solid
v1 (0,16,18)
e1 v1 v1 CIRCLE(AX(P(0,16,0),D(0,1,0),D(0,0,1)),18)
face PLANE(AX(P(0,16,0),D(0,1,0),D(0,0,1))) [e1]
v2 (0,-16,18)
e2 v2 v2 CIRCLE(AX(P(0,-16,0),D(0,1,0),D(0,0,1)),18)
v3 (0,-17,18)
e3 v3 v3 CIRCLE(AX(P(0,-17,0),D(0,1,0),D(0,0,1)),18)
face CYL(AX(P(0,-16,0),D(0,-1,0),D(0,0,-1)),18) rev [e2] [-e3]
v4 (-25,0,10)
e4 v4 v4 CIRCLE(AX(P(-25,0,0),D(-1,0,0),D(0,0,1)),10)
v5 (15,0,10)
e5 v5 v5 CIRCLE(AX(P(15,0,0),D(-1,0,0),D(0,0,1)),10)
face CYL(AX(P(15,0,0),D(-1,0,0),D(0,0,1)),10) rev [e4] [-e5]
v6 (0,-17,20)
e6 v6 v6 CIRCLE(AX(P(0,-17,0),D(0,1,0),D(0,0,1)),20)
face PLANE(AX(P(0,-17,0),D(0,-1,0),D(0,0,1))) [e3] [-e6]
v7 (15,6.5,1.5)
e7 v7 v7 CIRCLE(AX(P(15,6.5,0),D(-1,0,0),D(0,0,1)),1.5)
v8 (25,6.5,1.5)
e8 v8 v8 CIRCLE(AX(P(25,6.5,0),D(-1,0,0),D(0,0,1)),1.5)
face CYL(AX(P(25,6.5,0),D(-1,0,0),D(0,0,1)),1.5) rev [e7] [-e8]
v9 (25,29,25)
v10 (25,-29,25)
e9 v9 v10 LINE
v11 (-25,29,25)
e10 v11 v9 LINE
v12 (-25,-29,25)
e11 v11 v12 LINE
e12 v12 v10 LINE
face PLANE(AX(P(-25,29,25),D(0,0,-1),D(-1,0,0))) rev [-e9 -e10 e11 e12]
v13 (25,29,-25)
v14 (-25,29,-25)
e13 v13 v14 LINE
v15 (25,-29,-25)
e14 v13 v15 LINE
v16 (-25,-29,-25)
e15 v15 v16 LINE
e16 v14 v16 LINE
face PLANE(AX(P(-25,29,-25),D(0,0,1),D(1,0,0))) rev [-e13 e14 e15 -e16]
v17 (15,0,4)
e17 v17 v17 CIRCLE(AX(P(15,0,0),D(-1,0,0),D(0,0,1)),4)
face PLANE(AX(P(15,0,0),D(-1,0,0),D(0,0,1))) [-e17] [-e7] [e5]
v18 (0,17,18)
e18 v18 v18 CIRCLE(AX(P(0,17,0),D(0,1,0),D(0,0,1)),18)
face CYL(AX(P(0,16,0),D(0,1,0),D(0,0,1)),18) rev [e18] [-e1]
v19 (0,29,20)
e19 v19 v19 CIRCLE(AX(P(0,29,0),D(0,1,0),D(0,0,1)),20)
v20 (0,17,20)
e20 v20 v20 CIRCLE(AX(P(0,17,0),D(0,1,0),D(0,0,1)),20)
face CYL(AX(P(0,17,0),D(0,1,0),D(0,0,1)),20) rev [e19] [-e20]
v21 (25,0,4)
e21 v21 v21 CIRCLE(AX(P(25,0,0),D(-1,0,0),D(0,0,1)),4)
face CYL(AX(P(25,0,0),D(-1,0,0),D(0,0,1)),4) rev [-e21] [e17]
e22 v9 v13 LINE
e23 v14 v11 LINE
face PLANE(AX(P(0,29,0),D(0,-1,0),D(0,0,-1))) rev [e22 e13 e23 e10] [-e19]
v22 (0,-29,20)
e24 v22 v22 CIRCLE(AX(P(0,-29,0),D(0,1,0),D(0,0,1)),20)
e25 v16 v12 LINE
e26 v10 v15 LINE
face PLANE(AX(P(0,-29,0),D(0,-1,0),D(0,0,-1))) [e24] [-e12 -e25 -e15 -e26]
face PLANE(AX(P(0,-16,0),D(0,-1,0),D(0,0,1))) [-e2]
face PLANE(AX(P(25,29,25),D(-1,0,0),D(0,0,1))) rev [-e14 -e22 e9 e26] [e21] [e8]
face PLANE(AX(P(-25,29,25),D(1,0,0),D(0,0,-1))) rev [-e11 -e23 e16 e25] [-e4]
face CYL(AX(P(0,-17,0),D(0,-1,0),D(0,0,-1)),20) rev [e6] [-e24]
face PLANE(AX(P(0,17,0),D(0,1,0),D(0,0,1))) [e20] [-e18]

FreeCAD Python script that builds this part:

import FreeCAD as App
import Part
import Sketcher

V = App.Vector

doc = App.newDocument("Part")
body = doc.addObject("PartDesign::Body", "Body")

sketch1 = doc.addObject("Sketcher::SketchObject", "Sketch")
body.addObject(sketch1)
sketch1.AttachmentSupport = (doc.XZ_Plane, [""])
sketch1.MapMode = "FlatFace"
sketch1.addGeometry([
    Part.LineSegment(V(-25, -25, 0), V(-25, 25, 0)),
    Part.LineSegment(V(-25, 25, 0), V(25, 25, 0)),
    Part.LineSegment(V(25, 25, 0), V(25, -25, 0)),
    Part.LineSegment(V(25, -25, 0), V(-25, -25, 0)),
], False)
sketch1.addConstraint([
    Sketcher.Constraint("Coincident", 0, 2, 1, 1),
    Sketcher.Constraint("Coincident", 1, 2, 2, 1),
    Sketcher.Constraint("Coincident", 2, 2, 3, 1),
    Sketcher.Constraint("Coincident", 3, 2, 0, 1),
    Sketcher.Constraint("Vertical", 0),
    Sketcher.Constraint("Horizontal", 1),
    Sketcher.Constraint("Vertical", 2),
    Sketcher.Constraint("Horizontal", 3),
    Sketcher.Constraint("Symmetric", 0, 2, 2, 2, -1, 1),
    Sketcher.Constraint("Equal", 3, 0),
    Sketcher.Constraint("DistanceX", 1, 1, 1, 2, 50.0),
])
pad1 = doc.addObject("PartDesign::Pad", "Pad")
body.addObject(pad1)
pad1.Profile = sketch1
pad1.Length = 58
pad1.Midplane = True

sketch2 = doc.addObject("Sketcher::SketchObject", "Sketch001")
body.addObject(sketch2)
sketch2.AttachmentSupport = (doc.YZ_Plane, [""])
sketch2.MapMode = "FlatFace"
sketch2.AttachmentOffset = App.Placement(V(0, 0, -25), App.Rotation())
sketch2.addGeometry(Part.Circle(V(0, 0, 0), V(0, 0, 1), 10), False)
sketch2.addConstraint([
    Sketcher.Constraint("Coincident", 0, 3, -1, 1),
    Sketcher.Constraint("Diameter", 0, 20.0),
])
pocket1 = doc.addObject("PartDesign::Pocket", "Pocket")
body.addObject(pocket1)
pocket1.Profile = sketch2
pocket1.Length = 40
pocket1.Reversed = True

sketch3 = doc.addObject("Sketcher::SketchObject", "Sketch002")
body.addObject(sketch3)
sketch3.AttachmentSupport = (doc.YZ_Plane, [""])
sketch3.MapMode = "FlatFace"
sketch3.AttachmentOffset = App.Placement(V(0, 0, 15), App.Rotation())
sketch3.addGeometry([
    Part.Circle(V(6.5, 0, 0), V(0, 0, 1), 1.5),
    Part.Circle(V(0, 0, 0), V(0, 0, 1), 4),
], False)
sketch3.addConstraint([
    Sketcher.Constraint("Coincident", 1, 3, -1, 1),
    Sketcher.Constraint("PointOnObject", 0, 3, -1),
    Sketcher.Constraint("Diameter", 0, 3.0),
    Sketcher.Constraint("Diameter", 1, 8.0),
    Sketcher.Constraint("DistanceX", -1, 1, 0, 3, 6.5),
])
pocket2 = doc.addObject("PartDesign::Pocket", "Pocket001")
body.addObject(pocket2)
pocket2.Profile = sketch3
pocket2.Type = "ThroughAll"
pocket2.Reversed = True

sketch4 = doc.addObject("Sketcher::SketchObject", "Sketch003")
body.addObject(sketch4)
sketch4.AttachmentSupport = (doc.XZ_Plane, [""])
sketch4.MapMode = "FlatFace"
sketch4.AttachmentOffset = App.Placement(V(0, 0, -29), App.Rotation())
sketch4.addGeometry(Part.Circle(V(0, 0, 0), V(0, 0, 1), 20), False)
sketch4.addConstraint([
    Sketcher.Constraint("Coincident", 0, 3, -1, 1),
    Sketcher.Constraint("Diameter", 0, 40.0),
])
pocket3 = doc.addObject("PartDesign::Pocket", "Pocket002")
body.addObject(pocket3)
pocket3.Profile = sketch4
pocket3.Length = 12
pocket3.Reversed = True

sketch5 = doc.addObject("Sketcher::SketchObject", "Sketch004")
body.addObject(sketch5)
sketch5.AttachmentSupport = (doc.XZ_Plane, [""])
sketch5.MapMode = "FlatFace"
sketch5.AttachmentOffset = App.Placement(V(0, 0, -17), App.Rotation())
sketch5.addGeometry(Part.Circle(V(0, 0, 0), V(0, 0, 1), 18), False)
sketch5.addConstraint([
    Sketcher.Constraint("Coincident", 0, 3, -1, 1),
    Sketcher.Constraint("Diameter", 0, 36.0),
])
pocket4 = doc.addObject("PartDesign::Pocket", "Pocket003")
body.addObject(pocket4)
pocket4.Profile = sketch5
pocket4.Length = 1
pocket4.Reversed = True
doc.recompute()

mirrored = doc.addObject("PartDesign::Mirrored", "Mirrored")
body.addObject(mirrored)
mirrored.Originals = [pocket3, pocket4]
mirrored.MirrorPlane = (doc.XZ_Plane, [""])
body.Tip = mirrored

doc.recompute()
